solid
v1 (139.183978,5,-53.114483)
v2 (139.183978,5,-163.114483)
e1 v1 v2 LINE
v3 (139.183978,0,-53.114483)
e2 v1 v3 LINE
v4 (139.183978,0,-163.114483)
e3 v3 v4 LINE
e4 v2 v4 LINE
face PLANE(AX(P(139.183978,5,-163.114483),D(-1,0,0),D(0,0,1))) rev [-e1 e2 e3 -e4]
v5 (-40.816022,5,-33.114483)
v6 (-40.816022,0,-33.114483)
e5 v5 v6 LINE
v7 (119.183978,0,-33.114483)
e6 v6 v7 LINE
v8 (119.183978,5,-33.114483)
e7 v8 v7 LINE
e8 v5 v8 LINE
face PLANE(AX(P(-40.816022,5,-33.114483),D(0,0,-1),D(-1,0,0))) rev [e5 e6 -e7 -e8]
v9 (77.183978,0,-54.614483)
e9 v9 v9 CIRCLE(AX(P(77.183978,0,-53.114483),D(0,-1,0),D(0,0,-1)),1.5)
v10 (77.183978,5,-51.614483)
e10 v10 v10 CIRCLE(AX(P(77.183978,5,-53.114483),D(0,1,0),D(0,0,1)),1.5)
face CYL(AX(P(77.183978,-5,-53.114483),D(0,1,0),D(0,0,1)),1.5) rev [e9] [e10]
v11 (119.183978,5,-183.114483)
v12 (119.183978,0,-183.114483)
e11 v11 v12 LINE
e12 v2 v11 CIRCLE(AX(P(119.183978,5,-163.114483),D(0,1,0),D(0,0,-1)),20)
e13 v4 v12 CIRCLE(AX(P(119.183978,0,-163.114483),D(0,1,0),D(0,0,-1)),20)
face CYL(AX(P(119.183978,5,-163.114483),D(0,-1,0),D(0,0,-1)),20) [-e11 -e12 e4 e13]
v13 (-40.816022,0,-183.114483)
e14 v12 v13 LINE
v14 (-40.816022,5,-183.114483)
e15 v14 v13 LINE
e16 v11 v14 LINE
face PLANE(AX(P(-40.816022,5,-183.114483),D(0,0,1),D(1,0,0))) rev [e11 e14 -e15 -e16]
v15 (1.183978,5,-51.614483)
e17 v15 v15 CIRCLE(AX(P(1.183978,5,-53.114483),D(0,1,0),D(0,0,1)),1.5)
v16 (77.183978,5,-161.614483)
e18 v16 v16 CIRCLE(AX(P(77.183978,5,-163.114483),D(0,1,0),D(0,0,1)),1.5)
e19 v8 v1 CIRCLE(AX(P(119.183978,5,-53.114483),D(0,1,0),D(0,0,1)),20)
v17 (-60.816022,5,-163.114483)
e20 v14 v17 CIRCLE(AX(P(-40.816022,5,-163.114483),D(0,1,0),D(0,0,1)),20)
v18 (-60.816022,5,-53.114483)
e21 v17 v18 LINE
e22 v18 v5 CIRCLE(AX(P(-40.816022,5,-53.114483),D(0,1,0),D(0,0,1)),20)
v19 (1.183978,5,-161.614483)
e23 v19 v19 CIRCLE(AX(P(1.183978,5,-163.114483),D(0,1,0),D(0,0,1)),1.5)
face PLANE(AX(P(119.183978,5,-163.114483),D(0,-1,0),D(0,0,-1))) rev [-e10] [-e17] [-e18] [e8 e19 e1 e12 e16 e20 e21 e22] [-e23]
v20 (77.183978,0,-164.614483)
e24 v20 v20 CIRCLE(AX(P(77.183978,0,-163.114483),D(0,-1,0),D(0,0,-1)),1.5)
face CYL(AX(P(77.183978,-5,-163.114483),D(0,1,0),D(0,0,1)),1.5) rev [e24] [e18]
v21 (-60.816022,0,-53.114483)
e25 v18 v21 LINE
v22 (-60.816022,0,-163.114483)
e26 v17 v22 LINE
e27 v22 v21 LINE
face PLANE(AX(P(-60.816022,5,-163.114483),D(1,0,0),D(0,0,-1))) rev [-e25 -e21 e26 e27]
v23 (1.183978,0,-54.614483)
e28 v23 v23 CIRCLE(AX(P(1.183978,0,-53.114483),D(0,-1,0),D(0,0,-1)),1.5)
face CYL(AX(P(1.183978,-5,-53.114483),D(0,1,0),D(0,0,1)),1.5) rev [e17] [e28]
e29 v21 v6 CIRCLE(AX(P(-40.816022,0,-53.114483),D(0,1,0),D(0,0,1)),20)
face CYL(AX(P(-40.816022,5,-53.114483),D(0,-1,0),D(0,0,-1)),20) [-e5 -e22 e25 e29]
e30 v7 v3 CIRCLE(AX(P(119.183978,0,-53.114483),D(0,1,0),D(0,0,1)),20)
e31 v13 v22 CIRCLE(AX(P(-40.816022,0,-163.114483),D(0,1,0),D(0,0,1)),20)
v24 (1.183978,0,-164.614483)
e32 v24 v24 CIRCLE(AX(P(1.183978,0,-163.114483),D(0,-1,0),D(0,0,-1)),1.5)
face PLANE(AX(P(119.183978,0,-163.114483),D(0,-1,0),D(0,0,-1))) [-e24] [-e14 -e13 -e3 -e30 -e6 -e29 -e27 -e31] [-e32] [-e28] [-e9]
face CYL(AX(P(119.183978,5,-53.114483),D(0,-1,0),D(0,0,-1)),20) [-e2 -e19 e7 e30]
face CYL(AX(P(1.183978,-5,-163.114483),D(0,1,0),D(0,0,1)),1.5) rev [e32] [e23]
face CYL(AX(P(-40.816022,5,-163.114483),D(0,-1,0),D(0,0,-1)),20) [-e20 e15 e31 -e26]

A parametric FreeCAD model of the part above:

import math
import FreeCAD as App
import Part
import Sketcher
from FreeCAD import Vector

doc = App.newDocument("Part")
body = doc.addObject("PartDesign::Body", "Body")

# Sketch on XZ plane
sketch1 = body.newObject("Sketcher::SketchObject", "Sketch")
sketch1.AttachmentSupport = (doc.getObject("XZ_Plane"), [""])
sketch1.MapMode = "FlatFace"
sketch1.addGeometry([
    Part.LineSegment(Vector(119, -183, 0), Vector(-41, -183, 0)),  # 0
    Part.ArcOfCircle(Part.Circle(Vector(-41, -163, 0), Vector(0, 0, 1), 20), math.radians(180), math.radians(270)),  # 1
    Part.LineSegment(Vector(-61, -163, 0), Vector(-61, -53, 0)),  # 2
    Part.ArcOfCircle(Part.Circle(Vector(-41, -53, 0), Vector(0, 0, 1), 20), math.radians(90), math.radians(180)),  # 3
    Part.LineSegment(Vector(-41, -33, 0), Vector(119, -33, 0)),  # 4
    Part.ArcOfCircle(Part.Circle(Vector(119, -53, 0), Vector(0, 0, 1), 20), math.radians(0), math.radians(90)),  # 5
    Part.LineSegment(Vector(139, -53, 0), Vector(139, -163, 0)),  # 6
    Part.ArcOfCircle(Part.Circle(Vector(119, -163, 0), Vector(0, 0, 1), 20), math.radians(-90), math.radians(0)),  # 7
], False)
sketch1.addConstraint([
    Sketcher.Constraint("Tangent", 0, 2, 1, 2),
    Sketcher.Constraint("Tangent", 1, 1, 2, 1),
    Sketcher.Constraint("Tangent", 2, 2, 3, 2),
    Sketcher.Constraint("Tangent", 3, 1, 4, 1),
    Sketcher.Constraint("Tangent", 4, 2, 5, 2),
    Sketcher.Constraint("Tangent", 5, 1, 6, 1),
    Sketcher.Constraint("Tangent", 6, 2, 7, 2),
    Sketcher.Constraint("Tangent", 7, 1, 0, 1),
    Sketcher.Constraint("Horizontal", 0),
    Sketcher.Constraint("Vertical", 2),
    Sketcher.Constraint("Horizontal", 4),
    Sketcher.Constraint("Vertical", 6),
    Sketcher.Constraint("Equal", 1, 3),
    Sketcher.Constraint("Equal", 3, 5),
    Sketcher.Constraint("Equal", 5, 7),
    Sketcher.Constraint("Radius", 1, 20.0),
    Sketcher.Constraint("DistanceX", 0, 2, 0, 1, 160.0),
    Sketcher.Constraint("DistanceY", 2, 1, 2, 2, 110.0),
    Sketcher.Constraint("DistanceX", 1, 3, -1, 1, 40.816022),
    Sketcher.Constraint("DistanceY", 1, 3, -1, 1, 163.114483),
])
pad1 = body.newObject("PartDesign::Pad", "Pad")
pad1.Profile = sketch1
pad1.Length = 5
pad1.Reversed = True

# Sketch on XZ plane
sketch2 = body.newObject("Sketcher::SketchObject", "Sketch001")
sketch2.AttachmentSupport = (doc.getObject("XZ_Plane"), [""])
sketch2.MapMode = "FlatFace"
sketch2.AttachmentOffset = App.Placement(Vector(0, 0, -5), App.Rotation())
sketch2.addGeometry([
    Part.Circle(Vector(1.2, -163.1, 0), Vector(0, 0, 1), 1.5),
    Part.Circle(Vector(77.2, -163.1, 0), Vector(0, 0, 1), 1.5),
    Part.Circle(Vector(77.2, -53.1, 0), Vector(0, 0, 1), 1.5),
    Part.Circle(Vector(1.2, -53.1, 0), Vector(0, 0, 1), 1.5),
], False)
sketch2.addConstraint([
    Sketcher.Constraint("Equal", 0, 1),
    Sketcher.Constraint("Equal", 1, 2),
    Sketcher.Constraint("Equal", 2, 3),
    Sketcher.Constraint("Horizontal", 0, 3, 1, 3),
    Sketcher.Constraint("Horizontal", 2, 3, 3, 3),
    Sketcher.Constraint("Vertical", 1, 3, 2, 3),
    Sketcher.Constraint("Vertical", 0, 3, 3, 3),
    Sketcher.Constraint("Diameter", 0, 3.0),
    Sketcher.Constraint("DistanceX", 0, 3, 1, 3, 76.0),
    Sketcher.Constraint("DistanceY", 1, 3, 2, 3, 110.0),
    Sketcher.Constraint("DistanceX", -1, 1, 0, 3, 1.183978),
    Sketcher.Constraint("DistanceY", 0, 3, -1, 1, 163.114483),
])
pocket1 = body.newObject("PartDesign::Pocket", "Pocket")
pocket1.Profile = sketch2
pocket1.Length = 10
pocket1.Reversed = True

doc.recompute()
